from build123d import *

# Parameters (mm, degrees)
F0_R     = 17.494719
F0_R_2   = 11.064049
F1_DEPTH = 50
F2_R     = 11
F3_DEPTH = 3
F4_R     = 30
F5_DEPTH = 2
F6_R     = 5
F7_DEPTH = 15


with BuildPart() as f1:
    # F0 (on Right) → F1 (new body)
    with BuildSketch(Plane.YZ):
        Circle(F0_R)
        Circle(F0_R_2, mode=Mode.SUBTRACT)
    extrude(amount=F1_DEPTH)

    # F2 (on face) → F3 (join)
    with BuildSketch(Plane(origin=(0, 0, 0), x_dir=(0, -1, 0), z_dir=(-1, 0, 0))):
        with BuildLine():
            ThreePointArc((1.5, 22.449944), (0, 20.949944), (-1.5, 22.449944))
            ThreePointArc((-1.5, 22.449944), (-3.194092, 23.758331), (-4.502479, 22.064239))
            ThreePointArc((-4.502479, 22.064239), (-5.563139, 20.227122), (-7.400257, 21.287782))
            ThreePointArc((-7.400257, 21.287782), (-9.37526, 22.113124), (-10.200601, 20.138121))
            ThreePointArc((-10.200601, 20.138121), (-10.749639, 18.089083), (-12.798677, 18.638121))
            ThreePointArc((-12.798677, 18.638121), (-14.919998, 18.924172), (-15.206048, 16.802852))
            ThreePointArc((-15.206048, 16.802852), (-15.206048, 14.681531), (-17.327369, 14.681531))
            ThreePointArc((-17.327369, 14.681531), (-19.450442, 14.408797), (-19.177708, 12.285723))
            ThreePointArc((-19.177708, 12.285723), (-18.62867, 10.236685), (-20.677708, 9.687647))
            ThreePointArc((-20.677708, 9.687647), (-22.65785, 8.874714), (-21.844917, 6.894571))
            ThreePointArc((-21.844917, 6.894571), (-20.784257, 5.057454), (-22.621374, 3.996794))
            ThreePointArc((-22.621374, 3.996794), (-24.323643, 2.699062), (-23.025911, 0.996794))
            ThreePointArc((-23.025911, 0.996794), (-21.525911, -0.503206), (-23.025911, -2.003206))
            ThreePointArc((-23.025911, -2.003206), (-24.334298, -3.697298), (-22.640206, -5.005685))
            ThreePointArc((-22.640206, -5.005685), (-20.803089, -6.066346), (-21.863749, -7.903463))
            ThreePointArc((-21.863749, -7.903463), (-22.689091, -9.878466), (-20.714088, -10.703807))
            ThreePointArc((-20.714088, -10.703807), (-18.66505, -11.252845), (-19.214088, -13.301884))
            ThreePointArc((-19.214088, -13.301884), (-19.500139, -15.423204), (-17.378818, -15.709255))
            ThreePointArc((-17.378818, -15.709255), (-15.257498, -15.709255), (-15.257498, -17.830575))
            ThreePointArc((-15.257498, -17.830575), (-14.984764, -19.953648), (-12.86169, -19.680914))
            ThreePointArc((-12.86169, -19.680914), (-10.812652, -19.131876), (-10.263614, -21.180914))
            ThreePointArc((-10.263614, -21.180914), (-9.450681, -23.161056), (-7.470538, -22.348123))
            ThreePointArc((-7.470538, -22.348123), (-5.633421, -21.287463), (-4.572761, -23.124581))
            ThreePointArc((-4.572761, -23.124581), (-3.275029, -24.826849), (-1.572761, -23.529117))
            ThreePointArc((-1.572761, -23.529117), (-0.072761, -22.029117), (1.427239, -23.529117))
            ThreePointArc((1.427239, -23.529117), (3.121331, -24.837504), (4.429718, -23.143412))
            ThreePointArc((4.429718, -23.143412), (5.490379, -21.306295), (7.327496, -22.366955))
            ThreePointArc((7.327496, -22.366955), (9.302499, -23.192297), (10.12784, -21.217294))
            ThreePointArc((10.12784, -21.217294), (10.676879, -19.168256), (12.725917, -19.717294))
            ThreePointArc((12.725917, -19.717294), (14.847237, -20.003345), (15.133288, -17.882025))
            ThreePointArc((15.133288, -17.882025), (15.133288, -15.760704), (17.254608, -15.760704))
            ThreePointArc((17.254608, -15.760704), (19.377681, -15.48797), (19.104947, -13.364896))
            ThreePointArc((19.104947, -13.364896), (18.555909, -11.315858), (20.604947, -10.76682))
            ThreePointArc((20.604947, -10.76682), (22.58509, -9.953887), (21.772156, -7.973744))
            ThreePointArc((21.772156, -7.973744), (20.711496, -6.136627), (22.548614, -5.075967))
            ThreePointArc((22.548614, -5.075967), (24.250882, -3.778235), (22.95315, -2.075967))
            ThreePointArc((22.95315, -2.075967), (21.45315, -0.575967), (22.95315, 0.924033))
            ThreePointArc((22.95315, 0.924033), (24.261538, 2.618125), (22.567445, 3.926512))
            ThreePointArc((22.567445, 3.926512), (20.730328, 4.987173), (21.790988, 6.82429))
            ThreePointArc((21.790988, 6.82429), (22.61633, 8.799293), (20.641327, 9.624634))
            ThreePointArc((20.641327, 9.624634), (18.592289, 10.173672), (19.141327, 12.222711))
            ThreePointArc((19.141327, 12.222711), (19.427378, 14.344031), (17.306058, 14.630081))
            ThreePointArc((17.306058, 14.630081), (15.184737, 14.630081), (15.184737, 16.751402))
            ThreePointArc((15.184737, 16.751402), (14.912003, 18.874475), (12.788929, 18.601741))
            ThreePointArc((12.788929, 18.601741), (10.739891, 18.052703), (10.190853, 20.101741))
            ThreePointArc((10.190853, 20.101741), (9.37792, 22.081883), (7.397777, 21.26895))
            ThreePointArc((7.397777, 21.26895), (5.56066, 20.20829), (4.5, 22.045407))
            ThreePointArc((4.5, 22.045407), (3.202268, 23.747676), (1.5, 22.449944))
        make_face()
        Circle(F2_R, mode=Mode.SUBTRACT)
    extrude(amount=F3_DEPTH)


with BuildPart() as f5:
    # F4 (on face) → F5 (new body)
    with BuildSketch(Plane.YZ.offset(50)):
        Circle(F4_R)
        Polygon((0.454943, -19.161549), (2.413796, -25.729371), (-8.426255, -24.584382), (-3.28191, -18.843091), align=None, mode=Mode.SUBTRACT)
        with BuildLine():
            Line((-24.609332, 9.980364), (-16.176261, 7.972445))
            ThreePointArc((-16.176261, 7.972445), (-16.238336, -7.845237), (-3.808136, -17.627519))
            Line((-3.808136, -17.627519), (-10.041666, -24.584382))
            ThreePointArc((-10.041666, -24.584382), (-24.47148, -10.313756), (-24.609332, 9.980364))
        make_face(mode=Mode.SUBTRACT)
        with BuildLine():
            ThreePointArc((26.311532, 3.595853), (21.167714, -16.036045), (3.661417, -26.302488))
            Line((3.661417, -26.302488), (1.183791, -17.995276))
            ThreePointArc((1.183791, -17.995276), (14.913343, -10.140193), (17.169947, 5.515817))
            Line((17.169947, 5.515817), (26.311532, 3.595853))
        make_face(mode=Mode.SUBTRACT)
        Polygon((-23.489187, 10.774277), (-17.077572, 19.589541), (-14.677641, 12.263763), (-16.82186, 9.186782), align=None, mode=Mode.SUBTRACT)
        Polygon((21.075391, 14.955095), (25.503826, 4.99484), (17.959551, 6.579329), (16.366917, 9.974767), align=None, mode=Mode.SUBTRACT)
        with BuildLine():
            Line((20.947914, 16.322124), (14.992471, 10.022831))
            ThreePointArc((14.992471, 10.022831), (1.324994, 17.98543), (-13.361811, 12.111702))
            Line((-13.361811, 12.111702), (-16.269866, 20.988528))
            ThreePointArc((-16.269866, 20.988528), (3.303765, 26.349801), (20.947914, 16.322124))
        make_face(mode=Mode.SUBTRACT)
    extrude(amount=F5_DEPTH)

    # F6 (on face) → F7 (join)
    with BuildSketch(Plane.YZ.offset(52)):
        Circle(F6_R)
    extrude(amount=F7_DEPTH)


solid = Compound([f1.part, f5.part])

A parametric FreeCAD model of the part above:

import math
import FreeCAD as App
import Part
import Sketcher

V = App.Vector

doc = App.newDocument("Part")
params = doc.addObject("Spreadsheet::Sheet", "Params")
for row, (alias, value) in enumerate([
    ("pad1_length", "50 mm"),
    ("sketch2_diameter", "22 mm"),
    ("sketch2_radius", "1.5 mm"),
    ("pad2_length", "3 mm"),
    ("sketch3_diameter", "60 mm"),
    ("pad3_length", "2 mm"),
    ("sketch4_diameter", "10 mm"),
    ("pad4_length", "15 mm"),
], start=1):
    params.set(f"A{row}", alias)
    params.set(f"B{row}", "=" + value)
    params.setAlias(f"B{row}", alias)

body = doc.addObject("PartDesign::Body", "Body")

sketch1 = body.newObject("Sketcher::SketchObject", "Sketch")
sketch1.AttachmentSupport = (doc.getObject("YZ_Plane"), [""])
sketch1.MapMode = "FlatFace"
sketch1.addGeometry(Part.Circle(V(0, 0, 0), V(0, 0, 1), 17), False)
sketch1.addGeometry(Part.Circle(V(0, 0, 0), V(0, 0, 1), 11), False)
sketch1.addConstraint(Sketcher.Constraint("Coincident", 0, 3, -1, 1))
sketch1.addConstraint(Sketcher.Constraint("Coincident", 1, 3, -1, 1))
sketch1.addConstraint(Sketcher.Constraint("Diameter", 1, 22.128098))
sketch1.addConstraint(Sketcher.Constraint("Diameter", 0, 34.989438))
pad1 = body.newObject("PartDesign::Pad", "Pad")
pad1.Profile = sketch1
pad1.setExpression("Length", "Params.pad1_length")

sketch2 = body.newObject("Sketcher::SketchObject", "Sketch001")
sketch2.AttachmentSupport = (doc.getObject("YZ_Plane"), [""])
sketch2.MapMode = "FlatFace"
sketch2.addGeometry(Part.ArcOfCircle(Part.Circle(V(0, 22.4, 0), V(0, 0, 1), 1.5), math.radians(180), math.radians(360)), False)
sketch2.addGeometry(Part.ArcOfCircle(Part.Circle(V(3, 22.3, 0), V(0, 0, 1), 1.5), math.radians(-7), math.radians(173)), False)
sketch2.addGeometry(Part.ArcOfCircle(Part.Circle(V(6, 21.7, 0), V(0, 0, 1), 1.5), math.radians(165), math.radians(345)), False)
sketch2.addGeometry(Part.ArcOfCircle(Part.Circle(V(8.8, 20.7, 0), V(0, 0, 1), 1.5), math.radians(-22), math.radians(158)), False)
sketch2.addGeometry(Part.ArcOfCircle(Part.Circle(V(11.5, 19.4, 0), V(0, 0, 1), 1.5), math.radians(150), math.radians(330)), False)
sketch2.addGeometry(Part.ArcOfCircle(Part.Circle(V(14, 17.7, 0), V(0, 0, 1), 1.5), math.radians(-37), math.radians(143)), False)
sketch2.addGeometry(Part.ArcOfCircle(Part.Circle(V(16.3, 15.7, 0), V(0, 0, 1), 1.5), math.radians(135), math.radians(315)), False)
sketch2.addGeometry(Part.ArcOfCircle(Part.Circle(V(18.3, 13.5, 0), V(0, 0, 1), 1.5), math.radians(-52), math.radians(128)), False)
sketch2.addGeometry(Part.ArcOfCircle(Part.Circle(V(19.9, 11, 0), V(0, 0, 1), 1.5), math.radians(120), math.radians(300)), False)
sketch2.addGeometry(Part.ArcOfCircle(Part.Circle(V(21.3, 8.3, 0), V(0, 0, 1), 1.5), math.radians(-67), math.radians(113)), False)
sketch2.addGeometry(Part.ArcOfCircle(Part.Circle(V(22.2, 5.4, 0), V(0, 0, 1), 1.5), math.radians(105), math.radians(285)), False)
sketch2.addGeometry(Part.ArcOfCircle(Part.Circle(V(22.8, 2.5, 0), V(0, 0, 1), 1.5), math.radians(-82), math.radians(98)), False)
sketch2.addGeometry(Part.ArcOfCircle(Part.Circle(V(23, -0.5, 0), V(0, 0, 1), 1.5), math.radians(90), math.radians(270)), False)
sketch2.addGeometry(Part.ArcOfCircle(Part.Circle(V(22.8, -3.5, 0), V(0, 0, 1), 1.5), math.radians(-97), math.radians(83)), False)
sketch2.addGeometry(Part.ArcOfCircle(Part.Circle(V(22.3, -6.5, 0), V(0, 0, 1), 1.5), math.radians(75), math.radians(255)), False)
sketch2.addGeometry(Part.ArcOfCircle(Part.Circle(V(21.3, -9.3, 0), V(0, 0, 1), 1.5), math.radians(-112), math.radians(68)), False)
sketch2.addGeometry(Part.ArcOfCircle(Part.Circle(V(20, -12, 0), V(0, 0, 1), 1.5), math.radians(60), math.radians(240)), False)
sketch2.addGeometry(Part.ArcOfCircle(Part.Circle(V(18.3, -14.5, 0), V(0, 0, 1), 1.5), math.radians(-127), math.radians(53)), False)
sketch2.addGeometry(Part.ArcOfCircle(Part.Circle(V(16.3, -16.8, 0), V(0, 0, 1), 1.5), math.radians(45), math.radians(225)), False)
sketch2.addGeometry(Part.ArcOfCircle(Part.Circle(V(14.1, -18.8, 0), V(0, 0, 1), 1.5), math.radians(-142), math.radians(38)), False)
sketch2.addGeometry(Part.ArcOfCircle(Part.Circle(V(11.6, -20.4, 0), V(0, 0, 1), 1.5), math.radians(30), math.radians(210)), False)
sketch2.addGeometry(Part.ArcOfCircle(Part.Circle(V(8.9, -21.8, 0), V(0, 0, 1), 1.5), math.radians(-157), math.radians(23)), False)
sketch2.addGeometry(Part.ArcOfCircle(Part.Circle(V(6, -22.7, 0), V(0, 0, 1), 1.5), math.radians(15), math.radians(195)), False)
sketch2.addGeometry(Part.ArcOfCircle(Part.Circle(V(3.1, -23.3, 0), V(0, 0, 1), 1.5), math.radians(-172), math.radians(8)), False)
sketch2.addGeometry(Part.ArcOfCircle(Part.Circle(V(0.1, -23.5, 0), V(0, 0, 1), 1.5), math.radians(0), math.radians(180)), False)
sketch2.addGeometry(Part.ArcOfCircle(Part.Circle(V(-2.9, -23.3, 0), V(0, 0, 1), 1.5), math.radians(173), math.radians(353)), False)
sketch2.addGeometry(Part.ArcOfCircle(Part.Circle(V(-5.9, -22.8, 0), V(0, 0, 1), 1.5), math.radians(-15), math.radians(165)), False)
sketch2.addGeometry(Part.ArcOfCircle(Part.Circle(V(-8.7, -21.8, 0), V(0, 0, 1), 1.5), math.radians(158), math.radians(338)), False)
sketch2.addGeometry(Part.ArcOfCircle(Part.Circle(V(-11.4, -20.5, 0), V(0, 0, 1), 1.5), math.radians(-30), math.radians(150)), False)
sketch2.addGeometry(Part.ArcOfCircle(Part.Circle(V(-13.9, -18.8, 0), V(0, 0, 1), 1.5), math.radians(143), math.radians(323)), False)
sketch2.addGeometry(Part.ArcOfCircle(Part.Circle(V(-16.2, -16.8, 0), V(0, 0, 1), 1.5), math.radians(-45), math.radians(135)), False)
sketch2.addGeometry(Part.ArcOfCircle(Part.Circle(V(-18.2, -14.6, 0), V(0, 0, 1), 1.5), math.radians(128), math.radians(308)), False)
sketch2.addGeometry(Part.ArcOfCircle(Part.Circle(V(-19.9, -12.1, 0), V(0, 0, 1), 1.5), math.radians(-60), math.radians(120)), False)
sketch2.addGeometry(Part.ArcOfCircle(Part.Circle(V(-21.2, -9.4, 0), V(0, 0, 1), 1.5), math.radians(113), math.radians(293)), False)
sketch2.addGeometry(Part.ArcOfCircle(Part.Circle(V(-22.2, -6.5, 0), V(0, 0, 1), 1.5), math.radians(-75), math.radians(105)), False)
sketch2.addGeometry(Part.ArcOfCircle(Part.Circle(V(-22.8, -3.6, 0), V(0, 0, 1), 1.5), math.radians(98), math.radians(278)), False)
sketch2.addGeometry(Part.ArcOfCircle(Part.Circle(V(-23, -0.6, 0), V(0, 0, 1), 1.5), math.radians(-90), math.radians(90)), False)
sketch2.addGeometry(Part.ArcOfCircle(Part.Circle(V(-22.8, 2.4, 0), V(0, 0, 1), 1.5), math.radians(83), math.radians(263)), False)
sketch2.addGeometry(Part.ArcOfCircle(Part.Circle(V(-22.2, 5.4, 0), V(0, 0, 1), 1.5), math.radians(-105), math.radians(75)), False)
sketch2.addGeometry(Part.ArcOfCircle(Part.Circle(V(-21.2, 8.2, 0), V(0, 0, 1), 1.5), math.radians(68), math.radians(248)), False)
sketch2.addGeometry(Part.ArcOfCircle(Part.Circle(V(-19.9, 10.9, 0), V(0, 0, 1), 1.5), math.radians(-120), math.radians(60)), False)
sketch2.addGeometry(Part.ArcOfCircle(Part.Circle(V(-18.2, 13.4, 0), V(0, 0, 1), 1.5), math.radians(53), math.radians(233)), False)
sketch2.addGeometry(Part.ArcOfCircle(Part.Circle(V(-16.2, 15.7, 0), V(0, 0, 1), 1.5), math.radians(-135), math.radians(45)), False)
sketch2.addGeometry(Part.ArcOfCircle(Part.Circle(V(-14, 17.7, 0), V(0, 0, 1), 1.5), math.radians(38), math.radians(218)), False)
sketch2.addGeometry(Part.ArcOfCircle(Part.Circle(V(-11.5, 19.4, 0), V(0, 0, 1), 1.5), math.radians(-150), math.radians(30)), False)
sketch2.addGeometry(Part.ArcOfCircle(Part.Circle(V(-8.8, 20.7, 0), V(0, 0, 1), 1.5), math.radians(23), math.radians(203)), False)
sketch2.addGeometry(Part.ArcOfCircle(Part.Circle(V(-5.9, 21.7, 0), V(0, 0, 1), 1.5), math.radians(-165), math.radians(15)), False)
sketch2.addGeometry(Part.ArcOfCircle(Part.Circle(V(-3, 22.2, 0), V(0, 0, 1), 1.5), math.radians(8), math.radians(188)), False)
sketch2.addGeometry(Part.Circle(V(0, 0, 0), V(0, 0, 1), 11), False)
sketch2.addConstraint(Sketcher.Constraint("Coincident", 0, 2, 1, 2))
sketch2.addConstraint(Sketcher.Constraint("Coincident", 1, 1, 2, 1))
sketch2.addConstraint(Sketcher.Constraint("Coincident", 2, 2, 3, 2))
sketch2.addConstraint(Sketcher.Constraint("Coincident", 3, 1, 4, 1))
sketch2.addConstraint(Sketcher.Constraint("Coincident", 4, 2, 5, 2))
sketch2.addConstraint(Sketcher.Constraint("Coincident", 5, 1, 6, 1))
sketch2.addConstraint(Sketcher.Constraint("Coincident", 6, 2, 7, 2))
sketch2.addConstraint(Sketcher.Constraint("Coincident", 7, 1, 8, 1))
sketch2.addConstraint(Sketcher.Constraint("Coincident", 8, 2, 9, 2))
sketch2.addConstraint(Sketcher.Constraint("Coincident", 9, 1, 10, 1))
sketch2.addConstraint(Sketcher.Constraint("Coincident", 10, 2, 11, 2))
sketch2.addConstraint(Sketcher.Constraint("Coincident", 11, 1, 12, 1))
sketch2.addConstraint(Sketcher.Constraint("Coincident", 12, 2, 13, 2))
sketch2.addConstraint(Sketcher.Constraint("Coincident", 13, 1, 14, 1))
sketch2.addConstraint(Sketcher.Constraint("Coincident", 14, 2, 15, 2))
sketch2.addConstraint(Sketcher.Constraint("Coincident", 15, 1, 16, 1))
sketch2.addConstraint(Sketcher.Constraint("Coincident", 16, 2, 17, 2))
sketch2.addConstraint(Sketcher.Constraint("Coincident", 17, 1, 18, 1))
sketch2.addConstraint(Sketcher.Constraint("Coincident", 18, 2, 19, 2))
sketch2.addConstraint(Sketcher.Constraint("Coincident", 19, 1, 20, 1))
sketch2.addConstraint(Sketcher.Constraint("Coincident", 20, 2, 21, 2))
sketch2.addConstraint(Sketcher.Constraint("Coincident", 21, 1, 22, 1))
sketch2.addConstraint(Sketcher.Constraint("Coincident", 22, 2, 23, 2))
sketch2.addConstraint(Sketcher.Constraint("Coincident", 23, 1, 24, 1))
sketch2.addConstraint(Sketcher.Constraint("Coincident", 24, 2, 25, 2))
sketch2.addConstraint(Sketcher.Constraint("Coincident", 25, 1, 26, 1))
sketch2.addConstraint(Sketcher.Constraint("Coincident", 26, 2, 27, 2))
sketch2.addConstraint(Sketcher.Constraint("Coincident", 27, 1, 28, 1))
sketch2.addConstraint(Sketcher.Constraint("Coincident", 28, 2, 29, 2))
sketch2.addConstraint(Sketcher.Constraint("Coincident", 29, 1, 30, 1))
sketch2.addConstraint(Sketcher.Constraint("Coincident", 30, 2, 31, 2))
sketch2.addConstraint(Sketcher.Constraint("Coincident", 31, 1, 32, 1))
sketch2.addConstraint(Sketcher.Constraint("Coincident", 32, 2, 33, 2))
sketch2.addConstraint(Sketcher.Constraint("Coincident", 33, 1, 34, 1))
sketch2.addConstraint(Sketcher.Constraint("Coincident", 34, 2, 35, 2))
sketch2.addConstraint(Sketcher.Constraint("Coincident", 35, 1, 36, 1))
sketch2.addConstraint(Sketcher.Constraint("Coincident", 36, 2, 37, 2))
sketch2.addConstraint(Sketcher.Constraint("Coincident", 37, 1, 38, 1))
sketch2.addConstraint(Sketcher.Constraint("Coincident", 38, 2, 39, 2))
sketch2.addConstraint(Sketcher.Constraint("Coincident", 39, 1, 40, 1))
sketch2.addConstraint(Sketcher.Constraint("Coincident", 40, 2, 41, 2))
sketch2.addConstraint(Sketcher.Constraint("Coincident", 41, 1, 42, 1))
sketch2.addConstraint(Sketcher.Constraint("Coincident", 42, 2, 43, 2))
sketch2.addConstraint(Sketcher.Constraint("Coincident", 43, 1, 44, 1))
sketch2.addConstraint(Sketcher.Constraint("Coincident", 44, 2, 45, 2))
sketch2.addConstraint(Sketcher.Constraint("Coincident", 45, 1, 46, 1))
sketch2.addConstraint(Sketcher.Constraint("Coincident", 46, 2, 47, 2))
sketch2.addConstraint(Sketcher.Constraint("Coincident", 47, 1, 0, 1))
sketch2.addConstraint(Sketcher.Constraint("Coincident", 48, 3, -1, 1))
sketch2.addConstraint(Sketcher.Constraint("Equal", 0, 2))
sketch2.addConstraint(Sketcher.Constraint("Equal", 1, 3))
sketch2.addConstraint(Sketcher.Constraint("Equal", 2, 4))
sketch2.addConstraint(Sketcher.Constraint("Equal", 3, 5))
sketch2.addConstraint(Sketcher.Constraint("Equal", 4, 6))
sketch2.addConstraint(Sketcher.Constraint("Equal", 5, 7))
sketch2.addConstraint(Sketcher.Constraint("Equal", 6, 8))
sketch2.addConstraint(Sketcher.Constraint("Equal", 7, 9))
sketch2.addConstraint(Sketcher.Constraint("Equal", 8, 10))
sketch2.addConstraint(Sketcher.Constraint("Equal", 9, 11))
sketch2.addConstraint(Sketcher.Constraint("Equal", 10, 12))
sketch2.addConstraint(Sketcher.Constraint("Equal", 11, 13))
sketch2.addConstraint(Sketcher.Constraint("Equal", 12, 14))
sketch2.addConstraint(Sketcher.Constraint("Equal", 13, 15))
sketch2.addConstraint(Sketcher.Constraint("Equal", 14, 16))
sketch2.addConstraint(Sketcher.Constraint("Equal", 15, 17))
sketch2.addConstraint(Sketcher.Constraint("Equal", 16, 18))
sketch2.addConstraint(Sketcher.Constraint("Equal", 17, 19))
sketch2.addConstraint(Sketcher.Constraint("Equal", 18, 20))
sketch2.addConstraint(Sketcher.Constraint("Equal", 19, 21))
sketch2.addConstraint(Sketcher.Constraint("Equal", 20, 22))
sketch2.addConstraint(Sketcher.Constraint("Equal", 21, 23))
sketch2.addConstraint(Sketcher.Constraint("Equal", 22, 24))
sketch2.addConstraint(Sketcher.Constraint("Equal", 23, 25))
sketch2.addConstraint(Sketcher.Constraint("Equal", 24, 26))
sketch2.addConstraint(Sketcher.Constraint("Equal", 25, 27))
sketch2.addConstraint(Sketcher.Constraint("Equal", 26, 28))
sketch2.addConstraint(Sketcher.Constraint("Equal", 27, 29))
sketch2.addConstraint(Sketcher.Constraint("Equal", 28, 30))
sketch2.addConstraint(Sketcher.Constraint("Equal", 29, 31))
sketch2.addConstraint(Sketcher.Constraint("Equal", 30, 32))
sketch2.addConstraint(Sketcher.Constraint("Equal", 31, 33))
sketch2.addConstraint(Sketcher.Constraint("Equal", 32, 34))
sketch2.addConstraint(Sketcher.Constraint("Equal", 33, 35))
sketch2.addConstraint(Sketcher.Constraint("Equal", 34, 36))
sketch2.addConstraint(Sketcher.Constraint("Equal", 35, 37))
sketch2.addConstraint(Sketcher.Constraint("Equal", 36, 38))
sketch2.addConstraint(Sketcher.Constraint("Equal", 37, 39))
sketch2.addConstraint(Sketcher.Constraint("Equal", 38, 40))
sketch2.addConstraint(Sketcher.Constraint("Equal", 39, 41))
sketch2.addConstraint(Sketcher.Constraint("Equal", 40, 42))
sketch2.addConstraint(Sketcher.Constraint("Equal", 41, 43))
sketch2.addConstraint(Sketcher.Constraint("Equal", 42, 44))
sketch2.addConstraint(Sketcher.Constraint("Equal", 43, 45))
sketch2.addConstraint(Sketcher.Constraint("Equal", 44, 46))
sketch2.addConstraint(Sketcher.Constraint("Equal", 45, 47))
sketch2.addConstraint(Sketcher.Constraint("Symmetric", 0, 2, 47, 1, -2))
sketch2.addConstraint(Sketcher.Constraint("Horizontal", 24, 3, 23, 1))
sketch2.addConstraint(Sketcher.Constraint("Horizontal", 23, 1, 24, 2))
sketch2.addConstraint(Sketcher.Constraint("Vertical", 12, 3, 11, 1))
sketch2.addConstraint(Sketcher.Constraint("Vertical", 11, 1, 12, 2))
sketch2.addConstraint(Sketcher.Constraint("Vertical", 36, 3, 35, 1))
sketch2.addConstraint(Sketcher.Constraint("Vertical", 35, 1, 36, 2))
sketch2.addConstraint(Sketcher.Constraint("Diameter", 48, 22.0))
sketch2.addConstraint(Sketcher.Constraint("Radius", 0, 1.5))
sketch2.addConstraint(Sketcher.Constraint("DistanceX", 47, 3, -1, 1, 3.0))
sketch2.addConstraint(Sketcher.Constraint("DistanceX", 46, 2, -1, 1, 4.5))
sketch2.addConstraint(Sketcher.Constraint("Radius", 1, 1.513576))
sketch2.addConstraint(Sketcher.Constraint("DistanceY", 31, 3, -1, 1, 14.5628))
sketch2.addConstraint(Sketcher.Constraint("DistanceX", 37, 3, -1, 1, 22.760298))
sketch2.addConstraint(Sketcher.Constraint("DistanceY", -1, 1, 38, 3, 5.375401))
sketch2.addConstraint(Sketcher.Constraint("DistanceX", -1, 1, 3, 1, 10.200601))
sketch2.addConstraint(Sketcher.Constraint("DistanceX", -1, 1, 18, 2, 15.257498))
sketch2.addConstraint(Sketcher.Constraint("DistanceY", -1, 1, 42, 2, 16.751402))
sketch2.addConstraint(Sketcher.Constraint("DistanceX", -1, 1, 1, 3, 3.00124))
sketch2.addConstraint(Sketcher.Constraint("DistanceY", -1, 1, 1, 3, 22.257092))
sketch2.addConstraint(Sketcher.Constraint("DistanceX", -1, 1, 2, 3, 5.951368))
sketch2.addConstraint(Sketcher.Constraint("DistanceY", -1, 1, 2, 3, 21.676011))
sketch2.addConstraint(Sketcher.Constraint("DistanceX", -1, 1, 3, 3, 8.800429))
sketch2.addConstraint(Sketcher.Constraint("DistanceX", -1, 1, 4, 3, 11.499639))
sketch2.addConstraint(Sketcher.Constraint("DistanceY", -1, 1, 4, 3, 19.388121))
sketch2.addConstraint(Sketcher.Constraint("DistanceX", -1, 1, 6, 3, 16.266709))
sketch2.addConstraint(Sketcher.Constraint("DistanceY", -1, 1, 6, 3, 15.742192))
sketch2.addConstraint(Sketcher.Constraint("DistanceX", -1, 1, 7, 3, 18.252538))
sketch2.addConstraint(Sketcher.Constraint("DistanceY", -1, 1, 9, 3, 8.291109))
sketch2.addConstraint(Sketcher.Constraint("DistanceX", -1, 1, 12, 3, 23.025911))
sketch2.addConstraint(Sketcher.Constraint("DistanceX", -1, 1, 13, 3, 22.833058))
sketch2.addConstraint(Sketcher.Constraint("DistanceX", -1, 1, 14, 3, 22.251978))
sketch2.addConstraint(Sketcher.Constraint("DistanceX", -1, 1, 15, 3, 21.288919))
sketch2.addConstraint(Sketcher.Constraint("DistanceX", -1, 1, 16, 3, 19.964088))
sketch2.addConstraint(Sketcher.Constraint("DistanceY", 17, 3, -1, 1, 14.50557))
sketch2.addConstraint(Sketcher.Constraint("DistanceX", -1, 1, 18, 3, 16.318158))
sketch2.addConstraint(Sketcher.Constraint("DistanceY", 21, 3, -1, 1, 21.764518))
sketch2.addConstraint(Sketcher.Constraint("DistanceX", -1, 1, 22, 3, 6.021649))
sketch2.addConstraint(Sketcher.Constraint("DistanceY", 22, 3, -1, 1, 22.736352))
sketch2.addConstraint(Sketcher.Constraint("DistanceX", -1, 1, 23, 3, 3.072761))
sketch2.addConstraint(Sketcher.Constraint("DistanceY", 23, 3, -1, 1, 23.326849))
sketch2.addConstraint(Sketcher.Constraint("DistanceX", -1, 1, 24, 3, 0.072761))
sketch2.addConstraint(Sketcher.Constraint("DistanceX", 25, 3, -1, 1, 2.928479))
sketch2.addConstraint(Sketcher.Constraint("DistanceX", 27, 3, -1, 1, 8.727668))
sketch2.addConstraint(Sketcher.Constraint("DistanceX", 28, 3, -1, 1, 11.426879))
sketch2.addConstraint(Sketcher.Constraint("DistanceY", 29, 3, -1, 1, 18.79966))
sketch2.addConstraint(Sketcher.Constraint("DistanceX", 36, 3, -1, 1, 22.95315))
sketch2.addConstraint(Sketcher.Constraint("DistanceX", 39, 3, -1, 1, 21.216158))
sketch2.addConstraint(Sketcher.Constraint("DistanceY", -1, 1, 42, 3, 15.690741))
sketch2.addConstraint(Sketcher.Constraint("DistanceY", -1, 1, 43, 3, 17.676571))
sketch2.addConstraint(Sketcher.Constraint("DistanceX", 44, 3, -1, 1, 11.489891))
sketch2.addConstraint(Sketcher.Constraint("DistanceY", -1, 1, 44, 3, 19.351741))
sketch2.addConstraint(Sketcher.Constraint("DistanceX", 46, 3, -1, 1, 5.948888))
sketch2.addConstraint(Sketcher.Constraint("DistanceY", -1, 1, 4, 2, 18.638121))
sketch2.addConstraint(Sketcher.Constraint("DistanceX", -1, 1, 6, 2, 17.327369))
sketch2.addConstraint(Sketcher.Constraint("DistanceX", -1, 1, 7, 1, 19.177708))
sketch2.addConstraint(Sketcher.Constraint("DistanceY", -1, 1, 9, 1, 6.894571))
sketch2.addConstraint(Sketcher.Constraint("DistanceX", -1, 1, 14, 2, 21.863749))
sketch2.addConstraint(Sketcher.Constraint("DistanceX", -1, 1, 15, 1, 20.714088))
sketch2.addConstraint(Sketcher.Constraint("DistanceX", -1, 1, 19, 1, 12.86169))
sketch2.addConstraint(Sketcher.Constraint("DistanceX", 25, 1, -1, 1, 4.429718))
sketch2.addConstraint(Sketcher.Constraint("DistanceX", 27, 1, -1, 1, 10.12784))
sketch2.addConstraint(Sketcher.Constraint("DistanceX", 29, 1, -1, 1, 15.133288))
sketch2.addConstraint(Sketcher.Constraint("DistanceX", 30, 2, -1, 1, 17.254608))
sketch2.addConstraint(Sketcher.Constraint("DistanceY", 32, 2, -1, 1, 10.76682))
sketch2.addConstraint(Sketcher.Constraint("DistanceY", -1, 1, 37, 1, 3.926512))
sketch2.addConstraint(Sketcher.Constraint("DistanceX", 38, 2, -1, 1, 21.790988))
sketch2.addConstraint(Sketcher.Constraint("DistanceY", -1, 1, 38, 2, 6.82429))
sketch2.addConstraint(Sketcher.Constraint("DistanceY", -1, 1, 40, 2, 12.222711))
sketch2.addConstraint(Sketcher.Constraint("DistanceY", -1, 1, 41, 1, 14.630081))
sketch2.addConstraint(Sketcher.Constraint("DistanceX", 43, 1, -1, 1, 12.788929))
sketch2.addConstraint(Sketcher.Constraint("DistanceY", -1, 1, 44, 2, 20.101741))
sketch2.addConstraint(Sketcher.Constraint("DistanceY", -1, 1, 0, 3, 22.449944))
sketch2.addConstraint(Sketcher.Constraint("DistanceX", -1, 1, 5, 3, 14.002363))
sketch2.addConstraint(Sketcher.Constraint("DistanceX", -1, 1, 8, 3, 19.927708))
sketch2.addConstraint(Sketcher.Constraint("DistanceX", -1, 1, 9, 3, 21.261312))
sketch2.addConstraint(Sketcher.Constraint("DistanceX", -1, 1, 10, 3, 22.233145))
sketch2.addConstraint(Sketcher.Constraint("DistanceX", -1, 1, 11, 3, 22.823643))
sketch2.addConstraint(Sketcher.Constraint("DistanceY", -1, 1, 11, 3, 2.496794))
sketch2.addConstraint(Sketcher.Constraint("DistanceY", 14, 3, -1, 1, 6.454574))
sketch2.addConstraint(Sketcher.Constraint("DistanceX", -1, 1, 17, 3, 18.296453))
sketch2.addConstraint(Sketcher.Constraint("DistanceY", 18, 3, -1, 1, 16.769915))
sketch2.addConstraint(Sketcher.Constraint("DistanceX", -1, 1, 19, 3, 14.059594))
sketch2.addConstraint(Sketcher.Constraint("DistanceX", -1, 1, 20, 3, 11.562652))
sketch2.addConstraint(Sketcher.Constraint("DistanceX", -1, 1, 21, 3, 8.867076))
sketch2.addConstraint(Sketcher.Constraint("DistanceX", 26, 3, -1, 1, 5.878607))
sketch2.addConstraint(Sketcher.Constraint("DistanceY", 27, 3, -1, 1, 21.792125))
sketch2.addConstraint(Sketcher.Constraint("DistanceX", 29, 3, -1, 1, 13.929602))
sketch2.addConstraint(Sketcher.Constraint("DistanceX", 30, 3, -1, 1, 16.193948))
sketch2.addConstraint(Sketcher.Constraint("DistanceX", 32, 3, -1, 1, 19.854947))
sketch2.addConstraint(Sketcher.Constraint("DistanceY", 32, 3, -1, 1, 12.065858))
sketch2.addConstraint(Sketcher.Constraint("DistanceX", 33, 3, -1, 1, 21.188552))
sketch2.addConstraint(Sketcher.Constraint("DistanceX", 34, 3, -1, 1, 22.160385))
sketch2.addConstraint(Sketcher.Constraint("DistanceY", 34, 3, -1, 1, 6.524855))
sketch2.addConstraint(Sketcher.Constraint("DistanceX", 35, 3, -1, 1, 22.750882))
sketch2.addConstraint(Sketcher.Constraint("DistanceX", 40, 3, -1, 1, 19.891327))
sketch2.addConstraint(Sketcher.Constraint("DistanceX", 41, 3, -1, 1, 18.223693))
sketch2.addConstraint(Sketcher.Constraint("DistanceX", 45, 3, -1, 1, 8.794315))
sketch2.setExpression("Constraints[102]", "Params.sketch2_diameter")
sketch2.setExpression("Constraints[103]", "Params.sketch2_radius")
pad2 = body.newObject("PartDesign::Pad", "Pad001")
pad2.Profile = sketch2
pad2.setExpression("Length", "Params.pad2_length")
pad2.Reversed = True
body2 = doc.addObject("PartDesign::Body", "Body001")

sketch3 = body2.newObject("Sketcher::SketchObject", "Sketch002")
sketch3.AttachmentSupport = (doc.getObject("YZ_Plane001"), [""])
sketch3.MapMode = "FlatFace"
sketch3.AttachmentOffset = App.Placement(V(0, 0, 50), App.Rotation())
sketch3.addGeometry(Part.Circle(V(0, 0, 0), V(0, 0, 1), 30), False)
sketch3.addGeometry(Part.LineSegment(V(-3.28191, -18.843091, 0), V(0.454943, -19.161549, 0)), False)
sketch3.addGeometry(Part.LineSegment(V(0.454943, -19.161549, 0), V(2.413796, -25.729371, 0)), False)
sketch3.addGeometry(Part.LineSegment(V(2.413796, -25.729371, 0), V(-8.426255, -24.584382, 0)), False)
sketch3.addGeometry(Part.LineSegment(V(-8.426255, -24.584382, 0), V(-3.28191, -18.843091, 0)), False)
sketch3.addGeometry(Part.ArcOfCircle(Part.Circle(V(0, 0, 0), V(0, 0, 1), 26.556108), math.radians(157.924886), math.radians(247.782091)), False)
sketch3.addGeometry(Part.LineSegment(V(-24.609332, 9.980364, 0), V(-16.176261, 7.972445, 0)), False)
sketch3.addGeometry(Part.ArcOfCircle(Part.Circle(V(0.000001, 0, 0), V(0, 0, 1), 18.034171), math.radians(153.76369), math.radians(257.809525)), False)
sketch3.addGeometry(Part.LineSegment(V(-3.808136, -17.627519, 0), V(-10.041666, -24.584382, 0)), False)
sketch3.addGeometry(Part.LineSegment(V(17.169947, 5.515817, 0), V(26.311532, 3.595853, 0)), False)
sketch3.addGeometry(Part.ArcOfCircle(Part.Circle(V(0, 0.000001, 0), V(0, 0, 1), 26.556108), math.radians(-82.075113), math.radians(7.782089)), False)
sketch3.addGeometry(Part.LineSegment(V(3.661417, -26.302488, 0), V(1.183791, -17.995276, 0)), False)
sketch3.addGeometry(Part.ArcOfCircle(Part.Circle(V(0, 0, 0), V(0, 0, 1), 18.034171), math.radians(-86.236309), math.radians(17.809528)), False)
sketch3.addGeometry(Part.LineSegment(V(-16.82186, 9.186782, 0), V(-23.489187, 10.774277, 0)), False)
sketch3.addGeometry(Part.LineSegment(V(-23.489187, 10.774277, 0), V(-17.077572, 19.589541, 0)), False)
sketch3.addGeometry(Part.LineSegment(V(-17.077572, 19.589541, 0), V(-14.677641, 12.263763, 0)), False)
sketch3.addGeometry(Part.LineSegment(V(-14.677641, 12.263763, 0), V(-16.82186, 9.186782, 0)), False)
sketch3.addGeometry(Part.LineSegment(V(16.366917, 9.974767, 0), V(21.075391, 14.955095, 0)), False)
sketch3.addGeometry(Part.LineSegment(V(21.075391, 14.955095, 0), V(25.503826, 4.99484, 0)), False)
sketch3.addGeometry(Part.LineSegment(V(25.503826, 4.99484, 0), V(17.959551, 6.579329, 0)), False)
sketch3.addGeometry(Part.LineSegment(V(17.959551, 6.579329, 0), V(16.366917, 9.974767, 0)), False)
sketch3.addGeometry(Part.ArcOfCircle(Part.Circle(V(0, 0.000002, 0), V(0, 0, 1), 26.556106), math.radians(37.924883), math.radians(127.782094)), False)
sketch3.addGeometry(Part.LineSegment(V(20.947914, 16.322124, 0), V(14.992471, 10.022831, 0)), False)
sketch3.addGeometry(Part.ArcOfCircle(Part.Circle(V(0, -0.000002, 0), V(0, 0, 1), 18.034172), math.radians(33.763694), math.radians(137.809525)), False)
sketch3.addGeometry(Part.LineSegment(V(-13.361811, 12.111702, 0), V(-16.269866, 20.988528, 0)), False)
sketch3.addConstraint(Sketcher.Constraint("Coincident", 1, 2, 2, 1))
sketch3.addConstraint(Sketcher.Constraint("Coincident", 2, 2, 3, 1))
sketch3.addConstraint(Sketcher.Constraint("Coincident", 3, 2, 4, 1))
sketch3.addConstraint(Sketcher.Constraint("Coincident", 4, 2, 1, 1))
sketch3.addConstraint(Sketcher.Constraint("Coincident", 5, 1, 6, 1))
sketch3.addConstraint(Sketcher.Constraint("Coincident", 6, 2, 7, 1))
sketch3.addConstraint(Sketcher.Constraint("Coincident", 7, 2, 8, 1))
sketch3.addConstraint(Sketcher.Constraint("Coincident", 8, 2, 5, 2))
sketch3.addConstraint(Sketcher.Constraint("Coincident", 9, 2, 10, 2))
sketch3.addConstraint(Sketcher.Constraint("Coincident", 10, 1, 11, 1))
sketch3.addConstraint(Sketcher.Constraint("Coincident", 11, 2, 12, 1))
sketch3.addConstraint(Sketcher.Constraint("Coincident", 12, 2, 9, 1))
sketch3.addConstraint(Sketcher.Constraint("Coincident", 13, 2, 14, 1))
sketch3.addConstraint(Sketcher.Constraint("Coincident", 14, 2, 15, 1))
sketch3.addConstraint(Sketcher.Constraint("Coincident", 15, 2, 16, 1))
sketch3.addConstraint(Sketcher.Constraint("Coincident", 16, 2, 13, 1))
sketch3.addConstraint(Sketcher.Constraint("Coincident", 17, 2, 18, 1))
sketch3.addConstraint(Sketcher.Constraint("Coincident", 18, 2, 19, 1))
sketch3.addConstraint(Sketcher.Constraint("Coincident", 19, 2, 20, 1))
sketch3.addConstraint(Sketcher.Constraint("Coincident", 20, 2, 17, 1))
sketch3.addConstraint(Sketcher.Constraint("Coincident", 21, 1, 22, 1))
sketch3.addConstraint(Sketcher.Constraint("Coincident", 22, 2, 23, 1))
sketch3.addConstraint(Sketcher.Constraint("Coincident", 23, 2, 24, 1))
sketch3.addConstraint(Sketcher.Constraint("Coincident", 24, 2, 21, 2))
sketch3.addConstraint(Sketcher.Constraint("Coincident", 0, 3, -1, 1))
sketch3.addConstraint(Sketcher.Constraint("Coincident", 5, 3, -1, 1))
sketch3.addConstraint(Sketcher.Constraint("Coincident", 7, 3, -1, 1))
sketch3.addConstraint(Sketcher.Constraint("Coincident", 10, 3, -1, 1))
sketch3.addConstraint(Sketcher.Constraint("Coincident", 12, 3, -1, 1))
sketch3.addConstraint(Sketcher.Constraint("Coincident", 21, 3, -1, 1))
sketch3.addConstraint(Sketcher.Constraint("Coincident", 23, 3, -1, 1))
sketch3.addConstraint(Sketcher.Constraint("Diameter", 0, 60.0))
sketch3.addConstraint(Sketcher.Constraint("Radius", 5, 26.556108))
sketch3.addConstraint(Sketcher.Constraint("Radius", 7, 18.034171))
sketch3.addConstraint(Sketcher.Constraint("Radius", 10, 26.556108))
sketch3.addConstraint(Sketcher.Constraint("Radius", 12, 18.034171))
sketch3.addConstraint(Sketcher.Constraint("Radius", 23, 18.034172))
sketch3.addConstraint(Sketcher.Constraint("Radius", 21, 26.556106))
sketch3.addConstraint(Sketcher.Constraint("Distance", 1, 3.750398))
sketch3.addConstraint(Sketcher.Constraint("Distance", 16, 3.750398))
sketch3.addConstraint(Sketcher.Constraint("DistanceX", 4, 2, 11, 2, 4.465701))
sketch3.addConstraint(Sketcher.Constraint("DistanceY", 5, 1, 15, 2, 2.283399))
sketch3.addConstraint(Sketcher.Constraint("DistanceX", 16, 2, 6, 2, 0.645599))
sketch3.addConstraint(Sketcher.Constraint("DistanceY", 19, 2, 22, 2, 3.443502))
sketch3.addConstraint(Sketcher.Constraint("Distance", 6, 8.668819))
sketch3.addConstraint(Sketcher.Constraint("Distance", 8, 9.34103))
sketch3.addConstraint(Sketcher.Constraint("Distance", 9, 9.34103))
sketch3.addConstraint(Sketcher.Constraint("Distance", 15, 7.708871))
sketch3.addConstraint(Sketcher.Constraint("Distance", 19, 7.708871))
sketch3.addConstraint(Sketcher.Constraint("Distance", 24, 9.341029))
sketch3.addConstraint(Sketcher.Constraint("DistanceY", 1, 2, -1, 1, 19.161549))
sketch3.addConstraint(Sketcher.Constraint("DistanceY", 2, 2, -1, 1, 25.729371))
sketch3.addConstraint(Sketcher.Constraint("DistanceX", 4, 2, -1, 1, 3.28191))
sketch3.addConstraint(Sketcher.Constraint("DistanceY", 4, 2, -1, 1, 18.843091))
sketch3.addConstraint(Sketcher.Constraint("DistanceX", 5, 1, -1, 1, 24.609332))
sketch3.addConstraint(Sketcher.Constraint("DistanceY", 7, 2, -1, 1, 17.627519))
sketch3.addConstraint(Sketcher.Constraint("DistanceX", -1, 1, 9, 2, 26.311532))
sketch3.addConstraint(Sketcher.Constraint("DistanceX", 14, 2, -1, 1, 17.077572))
sketch3.addConstraint(Sketcher.Constraint("DistanceY", -1, 1, 14, 2, 19.589541))
sketch3.addConstraint(Sketcher.Constraint("DistanceX", -1, 1, 17, 2, 21.075391))
sketch3.addConstraint(Sketcher.Constraint("DistanceY", -1, 1, 18, 2, 4.99484))
sketch3.addConstraint(Sketcher.Constraint("DistanceX", -1, 1, 19, 2, 17.959551))
sketch3.addConstraint(Sketcher.Constraint("DistanceY", -1, 1, 19, 2, 6.579329))
sketch3.addConstraint(Sketcher.Constraint("DistanceX", 23, 2, -1, 1, 13.361811))
sketch3.addConstraint(Sketcher.Constraint("DistanceX", 3, 2, 2, 2, 10.840051))
sketch3.addConstraint(Sketcher.Constraint("DistanceY", 2, 2, 3, 2, 1.144989))
sketch3.addConstraint(Sketcher.Constraint("DistanceX", 3, 2, 7, 2, 4.618119))
sketch3.addConstraint(Sketcher.Constraint("DistanceX", 2, 2, 10, 1, 1.247621))
sketch3.addConstraint(Sketcher.Constraint("DistanceX", 20, 2, 12, 2, 0.80303))
sketch3.addConstraint(Sketcher.Constraint("DistanceY", 12, 2, 20, 2, 4.45895))
sketch3.addConstraint(Sketcher.Constraint("DistanceY", 17, 2, 21, 1, 1.367029))
sketch3.addConstraint(Sketcher.Constraint("DistanceX", 21, 1, 18, 2, 4.555912))
sketch3.addConstraint(Sketcher.Constraint("DistanceX", 13, 2, 24, 2, 7.219321))
sketch3.addConstraint(Sketcher.Constraint("DistanceY", 13, 2, 24, 2, 10.214251))
sketch3.setExpression("Constraints[31]", "Params.sketch3_diameter")
pad3 = body2.newObject("PartDesign::Pad", "Pad002")
pad3.Profile = sketch3
pad3.setExpression("Length", "Params.pad3_length")

sketch4 = body2.newObject("Sketcher::SketchObject", "Sketch003")
sketch4.AttachmentSupport = (doc.getObject("YZ_Plane001"), [""])
sketch4.MapMode = "FlatFace"
sketch4.AttachmentOffset = App.Placement(V(0, 0, 52), App.Rotation())
sketch4.addGeometry(Part.Circle(V(0, 0, 0), V(0, 0, 1), 5), False)
sketch4.addConstraint(Sketcher.Constraint("Coincident", 0, 3, -1, 1))
sketch4.addConstraint(Sketcher.Constraint("Diameter", 0, 10.0))
sketch4.setExpression("Constraints[1]", "Params.sketch4_diameter")
pad4 = body2.newObject("PartDesign::Pad", "Pad003")
pad4.Profile = sketch4
pad4.setExpression("Length", "Params.pad4_length")

doc.recompute()
